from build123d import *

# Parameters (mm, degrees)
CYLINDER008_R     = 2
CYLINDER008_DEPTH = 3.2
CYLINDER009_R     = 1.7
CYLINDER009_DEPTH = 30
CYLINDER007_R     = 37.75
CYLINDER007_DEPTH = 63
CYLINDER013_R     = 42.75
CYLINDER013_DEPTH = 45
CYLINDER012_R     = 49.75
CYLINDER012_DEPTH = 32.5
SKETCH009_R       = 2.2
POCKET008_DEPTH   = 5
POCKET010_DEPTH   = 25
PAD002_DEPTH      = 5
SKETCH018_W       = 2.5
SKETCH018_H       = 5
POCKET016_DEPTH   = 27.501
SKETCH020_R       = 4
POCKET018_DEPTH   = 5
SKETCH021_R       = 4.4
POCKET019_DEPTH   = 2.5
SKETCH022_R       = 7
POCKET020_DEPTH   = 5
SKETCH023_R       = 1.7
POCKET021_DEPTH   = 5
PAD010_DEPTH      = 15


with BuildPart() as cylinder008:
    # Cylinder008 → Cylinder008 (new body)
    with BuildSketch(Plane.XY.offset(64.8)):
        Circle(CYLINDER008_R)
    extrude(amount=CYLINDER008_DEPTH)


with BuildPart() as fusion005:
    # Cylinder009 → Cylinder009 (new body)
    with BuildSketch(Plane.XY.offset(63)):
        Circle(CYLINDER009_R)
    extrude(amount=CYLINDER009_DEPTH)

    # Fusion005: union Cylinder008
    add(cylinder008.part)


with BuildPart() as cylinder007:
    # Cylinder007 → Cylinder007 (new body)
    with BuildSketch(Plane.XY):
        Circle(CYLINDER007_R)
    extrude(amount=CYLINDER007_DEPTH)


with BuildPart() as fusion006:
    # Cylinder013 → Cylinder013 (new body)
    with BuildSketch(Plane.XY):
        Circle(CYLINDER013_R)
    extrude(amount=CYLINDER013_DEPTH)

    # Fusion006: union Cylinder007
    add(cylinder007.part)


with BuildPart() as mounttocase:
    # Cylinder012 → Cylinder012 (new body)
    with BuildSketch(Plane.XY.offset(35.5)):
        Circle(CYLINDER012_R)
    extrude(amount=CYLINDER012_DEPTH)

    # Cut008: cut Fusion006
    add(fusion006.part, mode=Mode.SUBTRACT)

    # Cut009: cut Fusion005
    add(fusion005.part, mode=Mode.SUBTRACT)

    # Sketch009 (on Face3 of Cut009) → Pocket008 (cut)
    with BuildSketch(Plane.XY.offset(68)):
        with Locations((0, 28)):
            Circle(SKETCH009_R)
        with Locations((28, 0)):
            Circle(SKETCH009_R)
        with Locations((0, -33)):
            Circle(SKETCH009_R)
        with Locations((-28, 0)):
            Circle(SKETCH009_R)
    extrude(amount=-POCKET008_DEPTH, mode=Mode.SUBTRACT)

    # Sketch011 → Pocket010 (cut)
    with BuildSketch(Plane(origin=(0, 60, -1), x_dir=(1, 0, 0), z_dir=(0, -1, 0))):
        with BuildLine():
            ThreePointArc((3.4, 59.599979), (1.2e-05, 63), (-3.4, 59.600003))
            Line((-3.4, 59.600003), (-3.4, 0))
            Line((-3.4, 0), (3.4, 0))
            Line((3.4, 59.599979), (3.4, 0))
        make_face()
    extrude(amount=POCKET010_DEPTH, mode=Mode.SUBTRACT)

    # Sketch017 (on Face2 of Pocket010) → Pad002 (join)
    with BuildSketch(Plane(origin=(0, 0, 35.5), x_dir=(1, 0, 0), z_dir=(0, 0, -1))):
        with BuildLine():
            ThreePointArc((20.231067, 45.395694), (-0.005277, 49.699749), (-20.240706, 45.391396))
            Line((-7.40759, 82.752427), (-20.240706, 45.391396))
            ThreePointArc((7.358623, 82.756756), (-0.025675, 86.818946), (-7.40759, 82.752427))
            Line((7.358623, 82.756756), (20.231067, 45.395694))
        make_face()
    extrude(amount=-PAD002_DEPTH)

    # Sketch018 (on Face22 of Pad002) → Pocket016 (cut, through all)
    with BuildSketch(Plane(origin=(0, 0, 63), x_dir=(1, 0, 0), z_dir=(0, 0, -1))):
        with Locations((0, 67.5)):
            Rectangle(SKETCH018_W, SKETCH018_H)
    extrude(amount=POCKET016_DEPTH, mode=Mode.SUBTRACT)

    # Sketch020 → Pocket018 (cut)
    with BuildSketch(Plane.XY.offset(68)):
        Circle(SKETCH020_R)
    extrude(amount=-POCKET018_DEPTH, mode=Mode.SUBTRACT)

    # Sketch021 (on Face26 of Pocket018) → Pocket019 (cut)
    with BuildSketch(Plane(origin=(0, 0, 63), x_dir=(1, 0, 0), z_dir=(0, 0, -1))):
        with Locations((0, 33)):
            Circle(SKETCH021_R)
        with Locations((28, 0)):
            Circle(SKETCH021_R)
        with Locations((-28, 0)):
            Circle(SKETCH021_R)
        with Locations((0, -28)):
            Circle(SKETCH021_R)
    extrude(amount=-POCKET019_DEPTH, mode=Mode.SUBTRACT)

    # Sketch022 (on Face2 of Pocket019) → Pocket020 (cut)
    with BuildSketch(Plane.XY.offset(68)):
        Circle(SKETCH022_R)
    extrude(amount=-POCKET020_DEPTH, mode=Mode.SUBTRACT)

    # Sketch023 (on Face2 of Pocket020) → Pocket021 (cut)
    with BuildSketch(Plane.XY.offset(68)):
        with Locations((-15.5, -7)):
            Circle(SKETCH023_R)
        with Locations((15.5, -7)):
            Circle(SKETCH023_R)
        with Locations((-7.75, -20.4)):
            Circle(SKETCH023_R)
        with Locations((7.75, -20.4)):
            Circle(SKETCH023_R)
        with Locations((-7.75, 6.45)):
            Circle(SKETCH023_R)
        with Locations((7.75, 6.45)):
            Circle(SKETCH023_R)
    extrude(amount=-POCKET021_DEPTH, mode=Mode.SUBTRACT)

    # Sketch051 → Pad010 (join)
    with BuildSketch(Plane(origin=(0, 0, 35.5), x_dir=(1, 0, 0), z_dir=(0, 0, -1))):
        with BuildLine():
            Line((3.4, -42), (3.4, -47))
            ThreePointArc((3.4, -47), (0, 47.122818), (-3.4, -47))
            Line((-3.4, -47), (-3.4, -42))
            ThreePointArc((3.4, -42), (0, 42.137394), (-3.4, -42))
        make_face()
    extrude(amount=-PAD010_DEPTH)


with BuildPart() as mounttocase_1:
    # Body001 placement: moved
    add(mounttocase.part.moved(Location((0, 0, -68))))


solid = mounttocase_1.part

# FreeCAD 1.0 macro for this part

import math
import FreeCAD as App
import Part
import Sketcher


def add_polygon(sketch, points):
    """Adds a closed chain of lines whose ends are joined by coincident constraints."""
    first, n = sketch.GeometryCount, len(points)
    for a, b in zip(points, points[1:] + points[:1]):
        sketch.addGeometry(Part.LineSegment(App.Vector(*a, 0), App.Vector(*b, 0)), False)
    for i in range(n):
        sketch.addConstraint(Sketcher.Constraint("Coincident", first + i, 2, first + (i + 1) % n, 1))

doc = App.newDocument("Part")
body = doc.addObject("PartDesign::Body", "Body")

# Sketch on XY plane
sketch1 = body.newObject("Sketcher::SketchObject", "Sketch")
sketch1.AttachmentSupport = (doc.getObject("XY_Plane"), [""])
sketch1.MapMode = "FlatFace"
sketch1.AttachmentOffset = App.Placement(App.Vector(0, 0, 64.8), App.Rotation())
sketch1.addGeometry(Part.Circle(App.Vector(0, 0, 0), App.Vector(0, 0, 1), 2), False)
sketch1.addConstraint([
    Sketcher.Constraint("Coincident", 0, 3, -1, 1),
    Sketcher.Constraint("Diameter", 0, 4.0),
])
pad1 = body.newObject("PartDesign::Pad", "Pad")
pad1.Profile = sketch1
pad1.Length = 3.2
body2 = doc.addObject("PartDesign::Body", "Body001")

# Sketch on XY plane
sketch2 = body2.newObject("Sketcher::SketchObject", "Sketch001")
sketch2.AttachmentSupport = (doc.getObject("XY_Plane001"), [""])
sketch2.MapMode = "FlatFace"
sketch2.AttachmentOffset = App.Placement(App.Vector(0, 0, 63), App.Rotation())
sketch2.addGeometry(Part.Circle(App.Vector(0, 0, 0), App.Vector(0, 0, 1), 1.7), False)
sketch2.addConstraint([
    Sketcher.Constraint("Coincident", 0, 3, -1, 1),
    Sketcher.Constraint("Diameter", 0, 3.4),
])
pad2 = body2.newObject("PartDesign::Pad", "Pad001")
pad2.Profile = sketch2
pad2.Length = 30
doc.recompute()

boolean = body2.newObject("PartDesign::Boolean", "Boolean")
boolean.Type = "Fuse"
boolean.addObjects([body])
body3 = doc.addObject("PartDesign::Body", "Body002")

# Sketch on XY plane
sketch3 = body3.newObject("Sketcher::SketchObject", "Sketch002")
sketch3.AttachmentSupport = (doc.getObject("XY_Plane002"), [""])
sketch3.MapMode = "FlatFace"
sketch3.addGeometry(Part.Circle(App.Vector(0, 0, 0), App.Vector(0, 0, 1), 38), False)
sketch3.addConstraint([
    Sketcher.Constraint("Coincident", 0, 3, -1, 1),
    Sketcher.Constraint("Diameter", 0, 75.5),
])
pad3 = body3.newObject("PartDesign::Pad", "Pad002")
pad3.Profile = sketch3
pad3.Length = 63
body4 = doc.addObject("PartDesign::Body", "Body003")

# Sketch on XY plane
sketch4 = body4.newObject("Sketcher::SketchObject", "Sketch003")
sketch4.AttachmentSupport = (doc.getObject("XY_Plane003"), [""])
sketch4.MapMode = "FlatFace"
sketch4.addGeometry(Part.Circle(App.Vector(0, 0, 0), App.Vector(0, 0, 1), 43), False)
sketch4.addConstraint([
    Sketcher.Constraint("Coincident", 0, 3, -1, 1),
    Sketcher.Constraint("Diameter", 0, 85.5),
])
pad4 = body4.newObject("PartDesign::Pad", "Pad003")
pad4.Profile = sketch4
pad4.Length = 45
doc.recompute()

boolean2 = body4.newObject("PartDesign::Boolean", "Boolean001")
boolean2.Type = "Fuse"
boolean2.addObjects([body3])
body5 = doc.addObject("PartDesign::Body", "Body004")

# Sketch on XY plane
sketch5 = body5.newObject("Sketcher::SketchObject", "Sketch004")
sketch5.AttachmentSupport = (doc.getObject("XY_Plane004"), [""])
sketch5.MapMode = "FlatFace"
sketch5.AttachmentOffset = App.Placement(App.Vector(0, 0, 35.5), App.Rotation())
sketch5.addGeometry(Part.Circle(App.Vector(0, 0, 0), App.Vector(0, 0, 1), 50), False)
sketch5.addConstraint([
    Sketcher.Constraint("Coincident", 0, 3, -1, 1),
    Sketcher.Constraint("Diameter", 0, 99.5),
])
pad5 = body5.newObject("PartDesign::Pad", "Pad004")
pad5.Profile = sketch5
pad5.Length = 32.5
doc.recompute()

boolean3 = body5.newObject("PartDesign::Boolean", "Boolean002")
boolean3.Type = "Cut"
boolean3.addObjects([body4])
doc.recompute()

boolean4 = body5.newObject("PartDesign::Boolean", "Boolean003")
boolean4.Type = "Cut"
boolean4.addObjects([body2])

# Sketch on XY plane
sketch6 = body5.newObject("Sketcher::SketchObject", "Sketch005")
sketch6.AttachmentSupport = (doc.getObject("XY_Plane004"), [""])
sketch6.MapMode = "FlatFace"
sketch6.AttachmentOffset = App.Placement(App.Vector(0, 0, 68), App.Rotation())
sketch6.addGeometry([
    Part.Circle(App.Vector(0, 28, 0), App.Vector(0, 0, 1), 2.2),
    Part.Circle(App.Vector(28, 0, 0), App.Vector(0, 0, 1), 2.2),
    Part.Circle(App.Vector(0, -33, 0), App.Vector(0, 0, 1), 2.2),
    Part.Circle(App.Vector(-28, 0, 0), App.Vector(0, 0, 1), 2.2),
], False)
sketch6.addConstraint([
    Sketcher.Constraint("Equal", 0, 1),
    Sketcher.Constraint("Equal", 1, 2),
    Sketcher.Constraint("Equal", 2, 3),
    Sketcher.Constraint("Symmetric", 1, 3, 3, 3, -1, 1),
    Sketcher.Constraint("PointOnObject", 0, 3, -2),
    Sketcher.Constraint("PointOnObject", 1, 3, -1),
    Sketcher.Constraint("PointOnObject", 2, 3, -2),
    Sketcher.Constraint("Diameter", 0, 4.4),
    Sketcher.Constraint("DistanceY", -1, 1, 0, 3, 28.0),
    Sketcher.Constraint("DistanceX", -1, 1, 1, 3, 28.0),
    Sketcher.Constraint("DistanceY", 2, 3, -1, 1, 33.0),
])
pocket1 = body5.newObject("PartDesign::Pocket", "Pocket")
pocket1.Profile = sketch6
pocket1.Length = 5

# Sketch on XZ plane
sketch7 = body5.newObject("Sketcher::SketchObject", "Sketch006")
sketch7.AttachmentSupport = (doc.getObject("XZ_Plane004"), [""])
sketch7.MapMode = "FlatFace"
sketch7.AttachmentOffset = App.Placement(App.Vector(0, 0, -60), App.Rotation())
sketch7.addGeometry([
    Part.ArcOfCircle(Part.Circle(App.Vector(0, 58.6, 0), App.Vector(0, 0, 1), 3.4), math.radians(0), math.radians(180)),
    Part.LineSegment(App.Vector(-3.4, 58.6, 0), App.Vector(-3.4, -1, 0)),
    Part.LineSegment(App.Vector(-3.4, -1, 0), App.Vector(3.4, -1, 0)),
    Part.LineSegment(App.Vector(3.4, -1, 0), App.Vector(3.4, 58.6, 0)),
], False)
sketch7.addConstraint([
    Sketcher.Constraint("Tangent", 0, 2, 1, 1),
    Sketcher.Constraint("Coincident", 1, 2, 2, 1),
    Sketcher.Constraint("Coincident", 2, 2, 3, 1),
    Sketcher.Constraint("Coincident", 3, 2, 0, 1),
    Sketcher.Constraint("Vertical", 1),
    Sketcher.Constraint("Horizontal", 2),
    Sketcher.Constraint("Vertical", 3),
    Sketcher.Constraint("PointOnObject", 0, 3, -2),
    Sketcher.Constraint("Radius", 0, 3.4),
    Sketcher.Constraint("DistanceY", 1, 2, -1, 1, 1.0),
    Sketcher.Constraint("DistanceY", -1, 1, 0, 3, 58.6),
    Sketcher.Constraint("DistanceY", 3, 1, 3, 2, 59.599979),
])
pocket2 = body5.newObject("PartDesign::Pocket", "Pocket001")
pocket2.Profile = sketch7
pocket2.Length = 25
pocket2.Reversed = True

# Sketch on XY plane
sketch8 = body5.newObject("Sketcher::SketchObject", "Sketch007")
sketch8.AttachmentSupport = (doc.getObject("XY_Plane004"), [""])
sketch8.MapMode = "FlatFace"
sketch8.AttachmentOffset = App.Placement(App.Vector(0, 0, 35.5), App.Rotation())
sketch8.addGeometry([
    Part.ArcOfCircle(Part.Circle(App.Vector(0, 0, 0), App.Vector(0, 0, 1), 50), math.radians(-114), math.radians(-66)),
    Part.LineSegment(App.Vector(20, -45, 0), App.Vector(7, -83, 0)),
    Part.ArcOfCircle(Part.Circle(App.Vector(0, -78, 0), App.Vector(0, 0, 1), 9), math.radians(-148), math.radians(-32)),
    Part.LineSegment(App.Vector(-7, -83, 0), App.Vector(-20, -45, 0)),
], False)
sketch8.addConstraint([
    Sketcher.Constraint("Coincident", 0, 2, 1, 1),
    Sketcher.Constraint("Coincident", 1, 2, 2, 2),
    Sketcher.Constraint("Coincident", 2, 1, 3, 1),
    Sketcher.Constraint("Coincident", 3, 2, 0, 1),
    Sketcher.Constraint("Coincident", 0, 3, -1, 1),
    Sketcher.Constraint("Radius", 2, 8.738072),
    Sketcher.Constraint("Radius", 0, 49.699747),
    Sketcher.Constraint("DistanceX", 2, 1, -1, 1, 7.40759),
    Sketcher.Constraint("DistanceX", 2, 3, 0, 2, 20.25418),
    Sketcher.Constraint("DistanceY", 2, 3, 0, 2, 32.685181),
    Sketcher.Constraint("DistanceY", 0, 2, 0, 3, 45.395692),
    Sketcher.Constraint("DistanceY", 1, 2, 2, 3, 4.675881),
    Sketcher.Constraint("DistanceY", 2, 3, 3, 2, 32.689479),
])
pad6 = body5.newObject("PartDesign::Pad", "Pad005")
pad6.Profile = sketch8
pad6.Length = 5

# Sketch on XY plane
sketch9 = body5.newObject("Sketcher::SketchObject", "Sketch008")
sketch9.AttachmentSupport = (doc.getObject("XY_Plane004"), [""])
sketch9.MapMode = "FlatFace"
sketch9.AttachmentOffset = App.Placement(App.Vector(0, 0, 63), App.Rotation())
add_polygon(sketch9, [(-1.2, -70), (-1.2, -65), (1.2, -65), (1.2, -70)])  # lines 0-3
sketch9.addConstraint([
    Sketcher.Constraint("Vertical", 0),
    Sketcher.Constraint("Horizontal", 1),
    Sketcher.Constraint("Vertical", 2),
    Sketcher.Constraint("Horizontal", 3),
    Sketcher.Constraint("DistanceY", 0, 1, 0, 2, 5.0),
    Sketcher.Constraint("DistanceX", 1, 1, 1, 2, 2.5),
    Sketcher.Constraint("DistanceY", 0, 2, -1, 1, 65.0),
    Sketcher.Constraint("DistanceX", 0, 2, -1, 1, 1.25),
])
pocket3 = body5.newObject("PartDesign::Pocket", "Pocket002")
pocket3.Profile = sketch9
pocket3.Type = "ThroughAll"

# Sketch on XY plane
sketch10 = body5.newObject("Sketcher::SketchObject", "Sketch009")
sketch10.AttachmentSupport = (doc.getObject("XY_Plane004"), [""])
sketch10.MapMode = "FlatFace"
sketch10.AttachmentOffset = App.Placement(App.Vector(0, 0, 68), App.Rotation())
sketch10.addGeometry(Part.Circle(App.Vector(0, 0, 0), App.Vector(0, 0, 1), 4), False)
sketch10.addConstraint([
    Sketcher.Constraint("Coincident", 0, 3, -1, 1),
    Sketcher.Constraint("Diameter", 0, 8.0),
])
pocket4 = body5.newObject("PartDesign::Pocket", "Pocket003")
pocket4.Profile = sketch10
pocket4.Length = 5

# Sketch on XY plane
sketch11 = body5.newObject("Sketcher::SketchObject", "Sketch010")
sketch11.AttachmentSupport = (doc.getObject("XY_Plane004"), [""])
sketch11.MapMode = "FlatFace"
sketch11.AttachmentOffset = App.Placement(App.Vector(0, 0, 63), App.Rotation())
sketch11.addGeometry([
    Part.Circle(App.Vector(0, -33, 0), App.Vector(0, 0, 1), 4.4),
    Part.Circle(App.Vector(28, 0, 0), App.Vector(0, 0, 1), 4.4),
    Part.Circle(App.Vector(-28, 0, 0), App.Vector(0, 0, 1), 4.4),
    Part.Circle(App.Vector(0, 28, 0), App.Vector(0, 0, 1), 4.4),
], False)
sketch11.addConstraint([
    Sketcher.Constraint("Equal", 0, 1),
    Sketcher.Constraint("Equal", 1, 2),
    Sketcher.Constraint("Equal", 2, 3),
    Sketcher.Constraint("Symmetric", 1, 3, 2, 3, -1, 1),
    Sketcher.Constraint("PointOnObject", 0, 3, -2),
    Sketcher.Constraint("PointOnObject", 1, 3, -1),
    Sketcher.Constraint("PointOnObject", 3, 3, -2),
    Sketcher.Constraint("Diameter", 0, 8.8),
    Sketcher.Constraint("DistanceY", 0, 3, -1, 1, 33.0),
    Sketcher.Constraint("DistanceX", -1, 1, 1, 3, 28.0),
    Sketcher.Constraint("DistanceY", -1, 1, 3, 3, 28.0),
])
pocket5 = body5.newObject("PartDesign::Pocket", "Pocket004")
pocket5.Profile = sketch11
pocket5.Length = 2.5
pocket5.Reversed = True

# Sketch on XY plane
sketch12 = body5.newObject("Sketcher::SketchObject", "Sketch011")
sketch12.AttachmentSupport = (doc.getObject("XY_Plane004"), [""])
sketch12.MapMode = "FlatFace"
sketch12.AttachmentOffset = App.Placement(App.Vector(0, 0, 68), App.Rotation())
sketch12.addGeometry(Part.Circle(App.Vector(0, 0, 0), App.Vector(0, 0, 1), 7), False)
sketch12.addConstraint([
    Sketcher.Constraint("Coincident", 0, 3, -1, 1),
    Sketcher.Constraint("Diameter", 0, 14.0),
])
pocket6 = body5.newObject("PartDesign::Pocket", "Pocket005")
pocket6.Profile = sketch12
pocket6.Length = 5

# Sketch on XY plane
sketch13 = body5.newObject("Sketcher::SketchObject", "Sketch012")
sketch13.AttachmentSupport = (doc.getObject("XY_Plane004"), [""])
sketch13.MapMode = "FlatFace"
sketch13.AttachmentOffset = App.Placement(App.Vector(0, 0, 68), App.Rotation())
sketch13.addGeometry([
    Part.Circle(App.Vector(-15.5, -7, 0), App.Vector(0, 0, 1), 1.7),  # 0
    Part.Circle(App.Vector(15.5, -7, 0), App.Vector(0, 0, 1), 1.7),  # 1
    Part.Circle(App.Vector(-7.8, -20.4, 0), App.Vector(0, 0, 1), 1.7),  # 2
    Part.Circle(App.Vector(7.8, -20.4, 0), App.Vector(0, 0, 1), 1.7),  # 3
    Part.Circle(App.Vector(-7.8, 6.5, 0), App.Vector(0, 0, 1), 1.7),  # 4
    Part.Circle(App.Vector(7.8, 6.5, 0), App.Vector(0, 0, 1), 1.7),  # 5
], False)
sketch13.addConstraint([
    Sketcher.Constraint("Equal", 0, 1),
    Sketcher.Constraint("Equal", 1, 2),
    Sketcher.Constraint("Equal", 2, 3),
    Sketcher.Constraint("Equal", 3, 4),
    Sketcher.Constraint("Equal", 4, 5),
    Sketcher.Constraint("Symmetric", 0, 3, 1, 3, -2),
    Sketcher.Constraint("Symmetric", 2, 3, 3, 3, -2),
    Sketcher.Constraint("Symmetric", 4, 3, 5, 3, -2),
    Sketcher.Constraint("Vertical", 2, 3, 4, 3),
    Sketcher.Constraint("Diameter", 0, 3.4),
    Sketcher.Constraint("DistanceY", 0, 3, -1, 1, 7.0),
    Sketcher.Constraint("DistanceX", 0, 3, 1, 3, 31.0),
    Sketcher.Constraint("DistanceY", 2, 3, -1, 1, 20.4),
    Sketcher.Constraint("DistanceX", 2, 3, 3, 3, 15.5),
    Sketcher.Constraint("DistanceY", -1, 1, 4, 3, 6.45),
])
pocket7 = body5.newObject("PartDesign::Pocket", "Pocket006")
pocket7.Profile = sketch13
pocket7.Length = 5

# Sketch on XY plane
sketch14 = body5.newObject("Sketcher::SketchObject", "Sketch013")
sketch14.AttachmentSupport = (doc.getObject("XY_Plane004"), [""])
sketch14.MapMode = "FlatFace"
sketch14.AttachmentOffset = App.Placement(App.Vector(0, 0, 35.5), App.Rotation())
sketch14.addGeometry([
    Part.LineSegment(App.Vector(3, 42, 0), App.Vector(3, 47, 0)),
    Part.ArcOfCircle(Part.Circle(App.Vector(0, 0, 0), App.Vector(0, 0, 1), 47), math.radians(94), math.radians(446)),
    Part.LineSegment(App.Vector(-3, 47, 0), App.Vector(-3, 42, 0)),
    Part.ArcOfCircle(Part.Circle(App.Vector(0, 0, 0), App.Vector(0, 0, 1), 42), math.radians(95), math.radians(445)),
], False)
sketch14.addConstraint([
    Sketcher.Constraint("Coincident", 0, 2, 1, 2),
    Sketcher.Constraint("Coincident", 1, 1, 2, 1),
    Sketcher.Constraint("Coincident", 2, 2, 3, 1),
    Sketcher.Constraint("Coincident", 3, 2, 0, 1),
    Sketcher.Constraint("Vertical", 0),
    Sketcher.Constraint("Vertical", 2),
    Sketcher.Constraint("Coincident", 1, 3, -1, 1),
    Sketcher.Constraint("Coincident", 3, 3, -1, 1),
    Sketcher.Constraint("Horizontal", 0, 2, 1, 1),
    Sketcher.Constraint("DistanceY", 0, 1, 0, 2, 5.0),
    Sketcher.Constraint("DistanceY", -1, 1, 0, 2, 47.0),
    Sketcher.Constraint("DistanceX", -1, 1, 0, 2, 3.4),
])
pad7 = body5.newObject("PartDesign::Pad", "Pad006")
pad7.Profile = sketch14
pad7.Length = 15
body6 = doc.addObject("PartDesign::Body", "Body005")
doc.recompute()

body5.Placement = App.Placement(App.Vector(0, 0, -68), App.Rotation(App.Vector(0, 0, 1), 0))
boolean5 = body6.newObject("PartDesign::Boolean", "Boolean004")
boolean5.Type = "Fuse"
boolean5.addObjects([body5])

doc.recompute()
